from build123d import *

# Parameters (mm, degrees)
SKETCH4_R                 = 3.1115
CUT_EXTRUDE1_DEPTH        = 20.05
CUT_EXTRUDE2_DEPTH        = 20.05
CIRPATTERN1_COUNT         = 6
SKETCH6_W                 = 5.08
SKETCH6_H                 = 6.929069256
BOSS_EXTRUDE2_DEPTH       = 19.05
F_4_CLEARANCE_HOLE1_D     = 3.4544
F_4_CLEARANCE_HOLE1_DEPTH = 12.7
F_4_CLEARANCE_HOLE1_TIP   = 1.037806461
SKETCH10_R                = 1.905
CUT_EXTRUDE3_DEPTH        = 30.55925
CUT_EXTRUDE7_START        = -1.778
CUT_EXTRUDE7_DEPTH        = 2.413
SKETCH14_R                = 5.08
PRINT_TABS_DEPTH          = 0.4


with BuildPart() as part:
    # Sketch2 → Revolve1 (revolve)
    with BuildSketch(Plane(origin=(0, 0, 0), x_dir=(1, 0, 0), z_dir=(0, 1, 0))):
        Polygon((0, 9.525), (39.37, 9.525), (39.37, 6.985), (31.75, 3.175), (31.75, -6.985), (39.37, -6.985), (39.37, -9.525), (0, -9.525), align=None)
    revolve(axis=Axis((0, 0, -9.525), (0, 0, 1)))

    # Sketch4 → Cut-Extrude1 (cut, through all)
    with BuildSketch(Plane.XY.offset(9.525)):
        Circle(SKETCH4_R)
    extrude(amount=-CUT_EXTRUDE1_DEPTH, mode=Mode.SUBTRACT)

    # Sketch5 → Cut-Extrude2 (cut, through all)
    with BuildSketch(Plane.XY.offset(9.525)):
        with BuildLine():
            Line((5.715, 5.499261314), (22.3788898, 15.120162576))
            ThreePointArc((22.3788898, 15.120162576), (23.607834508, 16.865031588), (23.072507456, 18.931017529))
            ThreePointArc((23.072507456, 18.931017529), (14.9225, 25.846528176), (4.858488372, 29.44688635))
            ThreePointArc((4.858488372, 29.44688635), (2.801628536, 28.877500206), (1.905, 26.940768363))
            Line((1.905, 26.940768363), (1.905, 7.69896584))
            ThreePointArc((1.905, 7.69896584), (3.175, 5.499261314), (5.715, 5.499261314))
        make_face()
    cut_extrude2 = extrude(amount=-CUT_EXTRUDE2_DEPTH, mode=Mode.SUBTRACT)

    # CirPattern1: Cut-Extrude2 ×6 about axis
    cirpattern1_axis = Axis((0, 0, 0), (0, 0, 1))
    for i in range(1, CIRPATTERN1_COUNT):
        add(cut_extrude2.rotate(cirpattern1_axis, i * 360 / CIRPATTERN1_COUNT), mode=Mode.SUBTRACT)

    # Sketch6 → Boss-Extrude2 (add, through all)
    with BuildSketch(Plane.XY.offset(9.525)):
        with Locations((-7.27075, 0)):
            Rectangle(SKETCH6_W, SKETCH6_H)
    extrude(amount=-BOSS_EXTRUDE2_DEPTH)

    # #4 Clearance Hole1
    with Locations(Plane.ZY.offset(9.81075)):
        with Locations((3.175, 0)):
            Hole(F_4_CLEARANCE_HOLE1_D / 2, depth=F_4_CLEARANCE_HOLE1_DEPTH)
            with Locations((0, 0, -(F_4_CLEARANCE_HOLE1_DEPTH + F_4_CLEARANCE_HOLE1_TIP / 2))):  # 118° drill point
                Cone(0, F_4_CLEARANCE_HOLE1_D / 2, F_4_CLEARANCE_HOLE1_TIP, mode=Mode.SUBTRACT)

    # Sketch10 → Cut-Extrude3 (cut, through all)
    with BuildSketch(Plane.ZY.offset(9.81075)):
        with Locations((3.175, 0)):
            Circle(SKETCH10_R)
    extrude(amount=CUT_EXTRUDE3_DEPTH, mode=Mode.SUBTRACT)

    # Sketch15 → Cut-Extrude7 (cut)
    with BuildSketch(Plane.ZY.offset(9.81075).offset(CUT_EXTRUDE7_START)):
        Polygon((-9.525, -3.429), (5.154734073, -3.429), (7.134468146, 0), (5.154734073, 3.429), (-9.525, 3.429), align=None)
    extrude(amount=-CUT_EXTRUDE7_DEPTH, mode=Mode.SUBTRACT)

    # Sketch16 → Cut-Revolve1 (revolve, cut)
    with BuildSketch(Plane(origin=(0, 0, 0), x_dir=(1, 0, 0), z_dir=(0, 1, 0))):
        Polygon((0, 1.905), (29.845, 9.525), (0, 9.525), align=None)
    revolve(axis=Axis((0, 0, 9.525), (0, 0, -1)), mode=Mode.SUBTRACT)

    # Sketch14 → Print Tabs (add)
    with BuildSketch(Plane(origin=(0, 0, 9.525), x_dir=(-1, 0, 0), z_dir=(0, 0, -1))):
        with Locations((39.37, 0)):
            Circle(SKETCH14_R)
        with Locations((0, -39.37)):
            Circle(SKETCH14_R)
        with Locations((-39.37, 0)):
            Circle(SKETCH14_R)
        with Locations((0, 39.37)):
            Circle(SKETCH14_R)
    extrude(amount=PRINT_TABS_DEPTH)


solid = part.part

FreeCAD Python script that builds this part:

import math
import FreeCAD as App
import Part
import Sketcher

V = App.Vector
Q = App.Units.Quantity


def add_polygon(sketch, points):
    """Adds a closed chain of lines whose ends are joined by coincident constraints."""
    first, n = sketch.GeometryCount, len(points)
    for a, b in zip(points, points[1:] + points[:1]):
        sketch.addGeometry(Part.LineSegment(App.Vector(*a, 0), App.Vector(*b, 0)), False)
    for i in range(n):
        sketch.addConstraint(Sketcher.Constraint("Coincident", first + i, 2, first + (i + 1) % n, 1))

doc = App.newDocument("Part")
body = doc.addObject("PartDesign::Body", "Body")

# Sketch on XZ plane
sketch1 = body.newObject("Sketcher::SketchObject", "Sketch")
sketch1.AttachmentSupport = (doc.getObject("XZ_Plane"), [""])
sketch1.MapMode = "FlatFace"
add_polygon(sketch1, [(39.4, -9.5), (0, -9.5), (0, 9.5), (39.4, 9.5), (39.4, 7), (31.8, 7), (31.8, -3.2), (39.4, -7)])  # lines 0-7
sketch1.addConstraint([
    Sketcher.Constraint("Horizontal", 0),
    Sketcher.Constraint("Vertical", 1),
    Sketcher.Constraint("Horizontal", 2),
    Sketcher.Constraint("Vertical", 3),
    Sketcher.Constraint("Horizontal", 4),
    Sketcher.Constraint("Vertical", 5),
    Sketcher.Constraint("Vertical", 7),
    Sketcher.Constraint("Symmetric", 0, 2, 1, 2, -1, 1),
    Sketcher.Constraint("Symmetric", 3, 2, 6, 2, -1),
    Sketcher.Constraint("DistanceX", 4, 2, 4, 1, Q("0.3 in")),
    Sketcher.Constraint("DistanceY", 3, 2, 3, 1, Q("0.1 in")),
    Sketcher.Constraint("DistanceY", 5, 2, 5, 1, Q("0.4 in")),
    Sketcher.Constraint("DistanceX", 0, 2, 0, 1, Q("1.55 in")),
    Sketcher.Constraint("DistanceY", 1, 1, 1, 2, Q("0.75 in")),
])
revolution = body.newObject("PartDesign::Revolution", "Revolution")
revolution.Profile = sketch1
revolution.ReferenceAxis = (sketch1, ["V_Axis"])
revolution.Angle = 360

# Sketch on XY plane
sketch2 = body.newObject("Sketcher::SketchObject", "Sketch001")
sketch2.AttachmentSupport = (doc.getObject("XY_Plane"), [""])
sketch2.MapMode = "FlatFace"
sketch2.AttachmentOffset = App.Placement(V(0, 0, 0.375 * 25.4), App.Rotation())
sketch2.addGeometry(Part.Circle(V(0, 0, 0), V(0, 0, 1), 3.1), False)
sketch2.addConstraint([
    Sketcher.Constraint("Coincident", 0, 3, -1, 1),
    Sketcher.Constraint("Diameter", 0, Q("0.245 in")),
])
pocket1 = body.newObject("PartDesign::Pocket", "Pocket")
pocket1.Profile = sketch2
pocket1.Type = "ThroughAll"

# Sketch on XY plane
sketch3 = body.newObject("Sketcher::SketchObject", "Sketch002")
sketch3.AttachmentSupport = (doc.getObject("XY_Plane"), [""])
sketch3.MapMode = "FlatFace"
sketch3.AttachmentOffset = App.Placement(V(0, 0, 0.375 * 25.4), App.Rotation())
sketch3.addGeometry([
    Part.LineSegment(V(5.7, 5.5, 0), V(22.4, 15.1, 0)),  # 0
    Part.ArcOfCircle(Part.Circle(V(21.1, 17.3, 0), V(0, 0, 1), 2.5), math.radians(-60), math.radians(39)),  # 1
    Part.ArcOfCircle(Part.Circle(V(0, 0, 0), V(0, 0, 1), 29.8), math.radians(39), math.radians(81)),  # 2
    Part.ArcOfCircle(Part.Circle(V(4.4, 26.9, 0), V(0, 0, 1), 2.5), math.radians(81), math.radians(180)),  # 3
    Part.LineSegment(V(1.9, 26.9, 0), V(1.9, 7.7, 0)),  # 4
    Part.ArcOfCircle(Part.Circle(V(4.4, 7.7, 0), V(0, 0, 1), 2.5), math.radians(180), math.radians(300)),  # 5
], False)
sketch3.addConstraint([
    Sketcher.Constraint("Tangent", 0, 2, 1, 1),
    Sketcher.Constraint("Tangent", 1, 2, 2, 1),
    Sketcher.Constraint("Tangent", 2, 2, 3, 1),
    Sketcher.Constraint("Tangent", 3, 2, 4, 1),
    Sketcher.Constraint("Tangent", 4, 2, 5, 1),
    Sketcher.Constraint("Tangent", 5, 2, 0, 1),
    Sketcher.Constraint("Vertical", 4),
    Sketcher.Constraint("Coincident", 2, 3, -1, 1),
    Sketcher.Constraint("Equal", 1, 3),
    Sketcher.Constraint("Equal", 3, 5),
    Sketcher.Constraint("Radius", 1, Q("0.1 in")),
    Sketcher.Constraint("Angle", 0, Q("30 deg")),
    Sketcher.Constraint("Radius", 2, Q("1.175 in")),
    Sketcher.Constraint("DistanceX", -1, 1, 3, 3, Q("0.175 in")),
    Sketcher.Constraint("DistanceY", 1, 3, 3, 3, Q("9.620901 mm")),
])
pocket2 = body.newObject("PartDesign::Pocket", "Pocket001")
pocket2.Profile = sketch3
pocket2.Type = "ThroughAll"
doc.recompute()

polarpattern = body.newObject("PartDesign::PolarPattern", "PolarPattern")
polarpattern.Originals = [pocket2]
polarpattern.Axis = (doc.getObject("Z_Axis"), [""])
polarpattern.Angle = 360
polarpattern.Occurrences = 6
body.Tip = polarpattern

# Sketch on XY plane
sketch4 = body.newObject("Sketcher::SketchObject", "Sketch003")
sketch4.AttachmentSupport = (doc.getObject("XY_Plane"), [""])
sketch4.MapMode = "FlatFace"
sketch4.AttachmentOffset = App.Placement(V(0, 0, 0.375 * 25.4), App.Rotation())
add_polygon(sketch4, [(-10, 3), (-10, -3), (-5, -3), (-5, 3)])  # lines 0-3
sketch4.addConstraint([
    Sketcher.Constraint("Vertical", 0),
    Sketcher.Constraint("Horizontal", 1),
    Sketcher.Constraint("Vertical", 2),
    Sketcher.Constraint("Horizontal", 3),
    Sketcher.Constraint("DistanceX", 1, 1, 1, 2, Q("0.2 in")),
    Sketcher.Constraint("DistanceY", 0, 2, 0, 1, Q("6.929069 mm")),
    Sketcher.Constraint("DistanceX", 0, 2, -1, 1, Q("9.81075 mm")),
    Sketcher.Constraint("DistanceY", 0, 2, -1, 1, Q("3.464535 mm")),
])
pad1 = body.newObject("PartDesign::Pad", "Pad")
pad1.Profile = sketch4
pad1.Length = Q("0.75 in")
pad1.Reversed = True

# Sketch on YZ plane
sketch5 = body.newObject("Sketcher::SketchObject", "Sketch004")
sketch5.AttachmentSupport = (doc.getObject("YZ_Plane"), [""])
sketch5.MapMode = "FlatFace"
sketch5.AttachmentOffset = App.Placement(V(0, 0, -9.81075), App.Rotation())
sketch5.addGeometry(Part.Circle(V(0, 3.2, 0), V(0, 0, 1), 1.7), False)
sketch5.addConstraint([
    Sketcher.Constraint("PointOnObject", 0, 3, -2),
    Sketcher.Constraint("Diameter", 0, Q("0.136 in")),
    Sketcher.Constraint("DistanceY", -1, 1, 0, 3, Q("0.125 in")),
])
doc.recompute()
hole = body.newObject("PartDesign::Hole", "Hole")
hole.Profile = sketch5
hole.ThreadType = "None"
hole.Diameter = Q("0.136 in")
hole.DepthType = "Dimension"
hole.Depth = Q("0.5 in")
hole.DrillPoint = "Angled"
hole.DrillPointAngle = 118
hole.Reversed = True

# Sketch on YZ plane
sketch6 = body.newObject("Sketcher::SketchObject", "Sketch005")
sketch6.AttachmentSupport = (doc.getObject("YZ_Plane"), [""])
sketch6.MapMode = "FlatFace"
sketch6.AttachmentOffset = App.Placement(V(0, 0, -9.81075), App.Rotation())
sketch6.addGeometry(Part.Circle(V(0, 3.2, 0), V(0, 0, 1), 1.9), False)
sketch6.addConstraint([
    Sketcher.Constraint("PointOnObject", 0, 3, -2),
    Sketcher.Constraint("Diameter", 0, Q("0.15 in")),
    Sketcher.Constraint("DistanceY", -1, 1, 0, 3, Q("0.125 in")),
])
pocket3 = body.newObject("PartDesign::Pocket", "Pocket002")
pocket3.Profile = sketch6
pocket3.Type = "ThroughAll"

# Sketch on YZ plane
sketch7 = body.newObject("Sketcher::SketchObject", "Sketch006")
sketch7.AttachmentSupport = (doc.getObject("YZ_Plane"), [""])
sketch7.MapMode = "FlatFace"
sketch7.AttachmentOffset = App.Placement(V(0, 0, -8.03275), App.Rotation())
add_polygon(sketch7, [(-3.4, -9.5), (-3.4, 5.2), (0, 7.1), (3.4, 5.2), (3.4, -9.5)])  # lines 0-4
sketch7.addConstraint([
    Sketcher.Constraint("Vertical", 0),
    Sketcher.Constraint("Vertical", 3),
    Sketcher.Constraint("Horizontal", 4),
    Sketcher.Constraint("Symmetric", 0, 2, 2, 2, -2),
    Sketcher.Constraint("PointOnObject", 1, 2, -2),
    Sketcher.Constraint("Angle", 1, Q("30 deg")),
    Sketcher.Constraint("DistanceX", 4, 2, 4, 1, Q("0.27 in")),
    Sketcher.Constraint("DistanceY", 3, 2, -1, 1, Q("0.375 in")),
    Sketcher.Constraint("DistanceY", 0, 1, 0, 2, Q("14.679734 mm")),
])
pocket4 = body.newObject("PartDesign::Pocket", "Pocket003")
pocket4.Profile = sketch7
pocket4.Length = Q("0.095 in")
pocket4.Reversed = True

# Sketch on XZ plane
sketch8 = body.newObject("Sketcher::SketchObject", "Sketch007")
sketch8.AttachmentSupport = (doc.getObject("XZ_Plane"), [""])
sketch8.MapMode = "FlatFace"
add_polygon(sketch8, [(0, -2), (30, -10), (0, -10)])  # lines 0-2
sketch8.addConstraint([
    Sketcher.Constraint("Horizontal", 1),
    Sketcher.Constraint("Vertical", 2),
    Sketcher.Constraint("PointOnObject", 1, 2, -2),
    Sketcher.Constraint("DistanceY", 2, 1, 2, 2, Q("0.3 in")),
    Sketcher.Constraint("DistanceX", 1, 2, 1, 1, Q("1.175 in")),
    Sketcher.Constraint("DistanceY", 0, 2, -1, 1, Q("0.375 in")),
])
groove = body.newObject("PartDesign::Groove", "Groove")
groove.Profile = sketch8
groove.ReferenceAxis = (sketch8, ["V_Axis"])
groove.Angle = 360

# Sketch on XY plane
sketch9 = body.newObject("Sketcher::SketchObject", "Sketch008")
sketch9.AttachmentSupport = (doc.getObject("XY_Plane"), [""])
sketch9.MapMode = "FlatFace"
sketch9.AttachmentOffset = App.Placement(V(0, 0, 0.375 * 25.4), App.Rotation())
sketch9.addGeometry([
    Part.Circle(V(-39, 0, 0), V(0, 0, 1), 5),
    Part.Circle(V(0, -39, 0), V(0, 0, 1), 5),
    Part.Circle(V(39, 0, 0), V(0, 0, 1), 5),
    Part.Circle(V(0, 39, 0), V(0, 0, 1), 5),
], False)
sketch9.addConstraint([
    Sketcher.Constraint("Equal", 0, 1),
    Sketcher.Constraint("Equal", 1, 2),
    Sketcher.Constraint("Equal", 2, 3),
    Sketcher.Constraint("Symmetric", 0, 3, 2, 3, -1, 1),
    Sketcher.Constraint("Symmetric", 1, 3, 3, 3, -1, 1),
    Sketcher.Constraint("PointOnObject", 0, 3, -1),
    Sketcher.Constraint("PointOnObject", 1, 3, -2),
    Sketcher.Constraint("Diameter", 0, Q("0.4 in")),
    Sketcher.Constraint("DistanceX", 0, 3, 2, 3, Q("3.1 in")),
    Sketcher.Constraint("DistanceY", 1, 3, 3, 3, Q("3.1 in")),
])
pad2 = body.newObject("PartDesign::Pad", "Pad001")
pad2.Profile = sketch9
pad2.Length = 0.4
pad2.Reversed = True

doc.recompute()
